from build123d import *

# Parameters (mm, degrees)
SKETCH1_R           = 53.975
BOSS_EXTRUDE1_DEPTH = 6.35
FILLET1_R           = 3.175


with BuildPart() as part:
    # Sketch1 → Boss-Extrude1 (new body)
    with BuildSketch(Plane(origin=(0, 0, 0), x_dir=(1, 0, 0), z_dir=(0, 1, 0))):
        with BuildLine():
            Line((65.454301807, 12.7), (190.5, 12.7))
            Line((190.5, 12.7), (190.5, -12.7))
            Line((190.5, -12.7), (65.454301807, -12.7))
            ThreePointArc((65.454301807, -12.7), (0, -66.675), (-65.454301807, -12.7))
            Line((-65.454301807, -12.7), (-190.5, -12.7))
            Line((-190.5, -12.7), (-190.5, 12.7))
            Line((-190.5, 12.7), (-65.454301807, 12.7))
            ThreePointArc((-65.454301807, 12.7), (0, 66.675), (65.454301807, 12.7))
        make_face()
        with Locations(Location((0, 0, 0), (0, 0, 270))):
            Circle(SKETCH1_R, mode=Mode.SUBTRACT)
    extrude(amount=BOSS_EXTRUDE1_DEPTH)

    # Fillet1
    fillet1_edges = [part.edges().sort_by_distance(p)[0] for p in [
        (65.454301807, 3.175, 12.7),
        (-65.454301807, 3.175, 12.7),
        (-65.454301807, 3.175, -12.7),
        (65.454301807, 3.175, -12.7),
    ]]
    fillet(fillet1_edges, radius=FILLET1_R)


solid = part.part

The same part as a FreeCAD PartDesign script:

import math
import FreeCAD as App
import Part
import Sketcher
Q = App.Units.Quantity


def edges_at(feature, points):
    """Names of the edges that pass closest to the given points."""
    edges = feature.Shape.Edges
    near = lambda p: min(range(len(edges)), key=lambda i: edges[i].distToShape(Part.Vertex(*p))[0])
    return sorted({f"Edge{near(p) + 1}" for p in points})

doc = App.newDocument("Part")
params = doc.addObject("Spreadsheet::Sheet", "Params")
for row, (alias, value) in enumerate([
    ("sketch1_diameter", "4.25 in"),
    ("sketch1_height", "1 in"),
    ("sketch1_radius", "2.625 in"),
    ("pad1_length", "0.25 in"),
    ("fillet_radius", "0.125 in"),
], start=1):
    params.set(f"A{row}", alias)
    params.set(f"B{row}", "=" + value)
    params.setAlias(f"B{row}", alias)

body = doc.addObject("PartDesign::Body", "Body")

# Sketch on XZ plane
sketch1 = doc.addObject("Sketcher::SketchObject", "Sketch")
body.addObject(sketch1)
sketch1.AttachmentSupport = (doc.XZ_Plane, [""])
sketch1.MapMode = "FlatFace"
sketch1.addGeometry(Part.LineSegment(App.Vector(190, -13, 0), App.Vector(65, -13, 0)), False)
sketch1.addGeometry(Part.ArcOfCircle(Part.Circle(App.Vector(0, 0, 0), App.Vector(0, 0, 1), 67), math.radians(-169), math.radians(-11)), False)
sketch1.addGeometry(Part.LineSegment(App.Vector(-65, -13, 0), App.Vector(-190, -13, 0)), False)
sketch1.addGeometry(Part.LineSegment(App.Vector(-190, -13, 0), App.Vector(-190, 13, 0)), False)
sketch1.addGeometry(Part.LineSegment(App.Vector(-190, 13, 0), App.Vector(-65, 13, 0)), False)
sketch1.addGeometry(Part.ArcOfCircle(Part.Circle(App.Vector(0, 0, 0), App.Vector(0, 0, 1), 67), math.radians(11), math.radians(169)), False)
sketch1.addGeometry(Part.LineSegment(App.Vector(65, 13, 0), App.Vector(190, 13, 0)), False)
sketch1.addGeometry(Part.LineSegment(App.Vector(190, 13, 0), App.Vector(190, -13, 0)), False)
sketch1.addGeometry(Part.Circle(App.Vector(0, 0, 0), App.Vector(0, 0, 1), 54), False)
sketch1.addConstraint(Sketcher.Constraint("Coincident", 0, 2, 1, 2))
sketch1.addConstraint(Sketcher.Constraint("Coincident", 1, 1, 2, 1))
sketch1.addConstraint(Sketcher.Constraint("Coincident", 2, 2, 3, 1))
sketch1.addConstraint(Sketcher.Constraint("Coincident", 3, 2, 4, 1))
sketch1.addConstraint(Sketcher.Constraint("Coincident", 4, 2, 5, 2))
sketch1.addConstraint(Sketcher.Constraint("Coincident", 5, 1, 6, 1))
sketch1.addConstraint(Sketcher.Constraint("Coincident", 6, 2, 7, 1))
sketch1.addConstraint(Sketcher.Constraint("Coincident", 7, 2, 0, 1))
sketch1.addConstraint(Sketcher.Constraint("Horizontal", 0))
sketch1.addConstraint(Sketcher.Constraint("Horizontal", 2))
sketch1.addConstraint(Sketcher.Constraint("Vertical", 3))
sketch1.addConstraint(Sketcher.Constraint("Horizontal", 4))
sketch1.addConstraint(Sketcher.Constraint("Horizontal", 6))
sketch1.addConstraint(Sketcher.Constraint("Vertical", 7))
sketch1.addConstraint(Sketcher.Constraint("Coincident", 1, 3, -1, 1))
sketch1.addConstraint(Sketcher.Constraint("Coincident", 5, 3, -1, 1))
sketch1.addConstraint(Sketcher.Constraint("Coincident", 8, 3, -1, 1))
sketch1.addConstraint(Sketcher.Constraint("Equal", 1, 5))
sketch1.addConstraint(Sketcher.Constraint("Symmetric", 2, 2, 6, 2, -1, 1))
sketch1.addConstraint(Sketcher.Constraint("Horizontal", 0, 2, 1, 1))
sketch1.addConstraint(Sketcher.Constraint("Horizontal", 4, 2, 5, 1))
sketch1.addConstraint(Sketcher.Constraint("Diameter", 8, Q("4.25 in")))
sketch1.addConstraint(Sketcher.Constraint("DistanceY", 3, 1, 3, 2, Q("1 in")))
sketch1.addConstraint(Sketcher.Constraint("Radius", 1, Q("2.625 in")))
sketch1.addConstraint(Sketcher.Constraint("DistanceX", 2, 2, -1, 1, Q("7.5 in")))
sketch1.setExpression("Constraints[21]", "Params.sketch1_diameter")
sketch1.setExpression("Constraints[22]", "Params.sketch1_height")
sketch1.setExpression("Constraints[23]", "Params.sketch1_radius")
pad1 = doc.addObject("PartDesign::Pad", "Pad")
body.addObject(pad1)
pad1.Profile = sketch1
pad1.setExpression("Length", "Params.pad1_length")
pad1.Reversed = True
doc.recompute()

fillet = doc.addObject("PartDesign::Fillet", "Fillet")
body.addObject(fillet)
fillet.Base = (pad1, edges_at(pad1, [
    (65.454, 3.175, 12.7),
    (-65.454, 3.175, 12.7),
    (-65.454, 3.175, -12.7),
    (65.454, 3.175, -12.7),
]))
fillet.setExpression("Radius", "Params.fillet_radius")

doc.recompute()
